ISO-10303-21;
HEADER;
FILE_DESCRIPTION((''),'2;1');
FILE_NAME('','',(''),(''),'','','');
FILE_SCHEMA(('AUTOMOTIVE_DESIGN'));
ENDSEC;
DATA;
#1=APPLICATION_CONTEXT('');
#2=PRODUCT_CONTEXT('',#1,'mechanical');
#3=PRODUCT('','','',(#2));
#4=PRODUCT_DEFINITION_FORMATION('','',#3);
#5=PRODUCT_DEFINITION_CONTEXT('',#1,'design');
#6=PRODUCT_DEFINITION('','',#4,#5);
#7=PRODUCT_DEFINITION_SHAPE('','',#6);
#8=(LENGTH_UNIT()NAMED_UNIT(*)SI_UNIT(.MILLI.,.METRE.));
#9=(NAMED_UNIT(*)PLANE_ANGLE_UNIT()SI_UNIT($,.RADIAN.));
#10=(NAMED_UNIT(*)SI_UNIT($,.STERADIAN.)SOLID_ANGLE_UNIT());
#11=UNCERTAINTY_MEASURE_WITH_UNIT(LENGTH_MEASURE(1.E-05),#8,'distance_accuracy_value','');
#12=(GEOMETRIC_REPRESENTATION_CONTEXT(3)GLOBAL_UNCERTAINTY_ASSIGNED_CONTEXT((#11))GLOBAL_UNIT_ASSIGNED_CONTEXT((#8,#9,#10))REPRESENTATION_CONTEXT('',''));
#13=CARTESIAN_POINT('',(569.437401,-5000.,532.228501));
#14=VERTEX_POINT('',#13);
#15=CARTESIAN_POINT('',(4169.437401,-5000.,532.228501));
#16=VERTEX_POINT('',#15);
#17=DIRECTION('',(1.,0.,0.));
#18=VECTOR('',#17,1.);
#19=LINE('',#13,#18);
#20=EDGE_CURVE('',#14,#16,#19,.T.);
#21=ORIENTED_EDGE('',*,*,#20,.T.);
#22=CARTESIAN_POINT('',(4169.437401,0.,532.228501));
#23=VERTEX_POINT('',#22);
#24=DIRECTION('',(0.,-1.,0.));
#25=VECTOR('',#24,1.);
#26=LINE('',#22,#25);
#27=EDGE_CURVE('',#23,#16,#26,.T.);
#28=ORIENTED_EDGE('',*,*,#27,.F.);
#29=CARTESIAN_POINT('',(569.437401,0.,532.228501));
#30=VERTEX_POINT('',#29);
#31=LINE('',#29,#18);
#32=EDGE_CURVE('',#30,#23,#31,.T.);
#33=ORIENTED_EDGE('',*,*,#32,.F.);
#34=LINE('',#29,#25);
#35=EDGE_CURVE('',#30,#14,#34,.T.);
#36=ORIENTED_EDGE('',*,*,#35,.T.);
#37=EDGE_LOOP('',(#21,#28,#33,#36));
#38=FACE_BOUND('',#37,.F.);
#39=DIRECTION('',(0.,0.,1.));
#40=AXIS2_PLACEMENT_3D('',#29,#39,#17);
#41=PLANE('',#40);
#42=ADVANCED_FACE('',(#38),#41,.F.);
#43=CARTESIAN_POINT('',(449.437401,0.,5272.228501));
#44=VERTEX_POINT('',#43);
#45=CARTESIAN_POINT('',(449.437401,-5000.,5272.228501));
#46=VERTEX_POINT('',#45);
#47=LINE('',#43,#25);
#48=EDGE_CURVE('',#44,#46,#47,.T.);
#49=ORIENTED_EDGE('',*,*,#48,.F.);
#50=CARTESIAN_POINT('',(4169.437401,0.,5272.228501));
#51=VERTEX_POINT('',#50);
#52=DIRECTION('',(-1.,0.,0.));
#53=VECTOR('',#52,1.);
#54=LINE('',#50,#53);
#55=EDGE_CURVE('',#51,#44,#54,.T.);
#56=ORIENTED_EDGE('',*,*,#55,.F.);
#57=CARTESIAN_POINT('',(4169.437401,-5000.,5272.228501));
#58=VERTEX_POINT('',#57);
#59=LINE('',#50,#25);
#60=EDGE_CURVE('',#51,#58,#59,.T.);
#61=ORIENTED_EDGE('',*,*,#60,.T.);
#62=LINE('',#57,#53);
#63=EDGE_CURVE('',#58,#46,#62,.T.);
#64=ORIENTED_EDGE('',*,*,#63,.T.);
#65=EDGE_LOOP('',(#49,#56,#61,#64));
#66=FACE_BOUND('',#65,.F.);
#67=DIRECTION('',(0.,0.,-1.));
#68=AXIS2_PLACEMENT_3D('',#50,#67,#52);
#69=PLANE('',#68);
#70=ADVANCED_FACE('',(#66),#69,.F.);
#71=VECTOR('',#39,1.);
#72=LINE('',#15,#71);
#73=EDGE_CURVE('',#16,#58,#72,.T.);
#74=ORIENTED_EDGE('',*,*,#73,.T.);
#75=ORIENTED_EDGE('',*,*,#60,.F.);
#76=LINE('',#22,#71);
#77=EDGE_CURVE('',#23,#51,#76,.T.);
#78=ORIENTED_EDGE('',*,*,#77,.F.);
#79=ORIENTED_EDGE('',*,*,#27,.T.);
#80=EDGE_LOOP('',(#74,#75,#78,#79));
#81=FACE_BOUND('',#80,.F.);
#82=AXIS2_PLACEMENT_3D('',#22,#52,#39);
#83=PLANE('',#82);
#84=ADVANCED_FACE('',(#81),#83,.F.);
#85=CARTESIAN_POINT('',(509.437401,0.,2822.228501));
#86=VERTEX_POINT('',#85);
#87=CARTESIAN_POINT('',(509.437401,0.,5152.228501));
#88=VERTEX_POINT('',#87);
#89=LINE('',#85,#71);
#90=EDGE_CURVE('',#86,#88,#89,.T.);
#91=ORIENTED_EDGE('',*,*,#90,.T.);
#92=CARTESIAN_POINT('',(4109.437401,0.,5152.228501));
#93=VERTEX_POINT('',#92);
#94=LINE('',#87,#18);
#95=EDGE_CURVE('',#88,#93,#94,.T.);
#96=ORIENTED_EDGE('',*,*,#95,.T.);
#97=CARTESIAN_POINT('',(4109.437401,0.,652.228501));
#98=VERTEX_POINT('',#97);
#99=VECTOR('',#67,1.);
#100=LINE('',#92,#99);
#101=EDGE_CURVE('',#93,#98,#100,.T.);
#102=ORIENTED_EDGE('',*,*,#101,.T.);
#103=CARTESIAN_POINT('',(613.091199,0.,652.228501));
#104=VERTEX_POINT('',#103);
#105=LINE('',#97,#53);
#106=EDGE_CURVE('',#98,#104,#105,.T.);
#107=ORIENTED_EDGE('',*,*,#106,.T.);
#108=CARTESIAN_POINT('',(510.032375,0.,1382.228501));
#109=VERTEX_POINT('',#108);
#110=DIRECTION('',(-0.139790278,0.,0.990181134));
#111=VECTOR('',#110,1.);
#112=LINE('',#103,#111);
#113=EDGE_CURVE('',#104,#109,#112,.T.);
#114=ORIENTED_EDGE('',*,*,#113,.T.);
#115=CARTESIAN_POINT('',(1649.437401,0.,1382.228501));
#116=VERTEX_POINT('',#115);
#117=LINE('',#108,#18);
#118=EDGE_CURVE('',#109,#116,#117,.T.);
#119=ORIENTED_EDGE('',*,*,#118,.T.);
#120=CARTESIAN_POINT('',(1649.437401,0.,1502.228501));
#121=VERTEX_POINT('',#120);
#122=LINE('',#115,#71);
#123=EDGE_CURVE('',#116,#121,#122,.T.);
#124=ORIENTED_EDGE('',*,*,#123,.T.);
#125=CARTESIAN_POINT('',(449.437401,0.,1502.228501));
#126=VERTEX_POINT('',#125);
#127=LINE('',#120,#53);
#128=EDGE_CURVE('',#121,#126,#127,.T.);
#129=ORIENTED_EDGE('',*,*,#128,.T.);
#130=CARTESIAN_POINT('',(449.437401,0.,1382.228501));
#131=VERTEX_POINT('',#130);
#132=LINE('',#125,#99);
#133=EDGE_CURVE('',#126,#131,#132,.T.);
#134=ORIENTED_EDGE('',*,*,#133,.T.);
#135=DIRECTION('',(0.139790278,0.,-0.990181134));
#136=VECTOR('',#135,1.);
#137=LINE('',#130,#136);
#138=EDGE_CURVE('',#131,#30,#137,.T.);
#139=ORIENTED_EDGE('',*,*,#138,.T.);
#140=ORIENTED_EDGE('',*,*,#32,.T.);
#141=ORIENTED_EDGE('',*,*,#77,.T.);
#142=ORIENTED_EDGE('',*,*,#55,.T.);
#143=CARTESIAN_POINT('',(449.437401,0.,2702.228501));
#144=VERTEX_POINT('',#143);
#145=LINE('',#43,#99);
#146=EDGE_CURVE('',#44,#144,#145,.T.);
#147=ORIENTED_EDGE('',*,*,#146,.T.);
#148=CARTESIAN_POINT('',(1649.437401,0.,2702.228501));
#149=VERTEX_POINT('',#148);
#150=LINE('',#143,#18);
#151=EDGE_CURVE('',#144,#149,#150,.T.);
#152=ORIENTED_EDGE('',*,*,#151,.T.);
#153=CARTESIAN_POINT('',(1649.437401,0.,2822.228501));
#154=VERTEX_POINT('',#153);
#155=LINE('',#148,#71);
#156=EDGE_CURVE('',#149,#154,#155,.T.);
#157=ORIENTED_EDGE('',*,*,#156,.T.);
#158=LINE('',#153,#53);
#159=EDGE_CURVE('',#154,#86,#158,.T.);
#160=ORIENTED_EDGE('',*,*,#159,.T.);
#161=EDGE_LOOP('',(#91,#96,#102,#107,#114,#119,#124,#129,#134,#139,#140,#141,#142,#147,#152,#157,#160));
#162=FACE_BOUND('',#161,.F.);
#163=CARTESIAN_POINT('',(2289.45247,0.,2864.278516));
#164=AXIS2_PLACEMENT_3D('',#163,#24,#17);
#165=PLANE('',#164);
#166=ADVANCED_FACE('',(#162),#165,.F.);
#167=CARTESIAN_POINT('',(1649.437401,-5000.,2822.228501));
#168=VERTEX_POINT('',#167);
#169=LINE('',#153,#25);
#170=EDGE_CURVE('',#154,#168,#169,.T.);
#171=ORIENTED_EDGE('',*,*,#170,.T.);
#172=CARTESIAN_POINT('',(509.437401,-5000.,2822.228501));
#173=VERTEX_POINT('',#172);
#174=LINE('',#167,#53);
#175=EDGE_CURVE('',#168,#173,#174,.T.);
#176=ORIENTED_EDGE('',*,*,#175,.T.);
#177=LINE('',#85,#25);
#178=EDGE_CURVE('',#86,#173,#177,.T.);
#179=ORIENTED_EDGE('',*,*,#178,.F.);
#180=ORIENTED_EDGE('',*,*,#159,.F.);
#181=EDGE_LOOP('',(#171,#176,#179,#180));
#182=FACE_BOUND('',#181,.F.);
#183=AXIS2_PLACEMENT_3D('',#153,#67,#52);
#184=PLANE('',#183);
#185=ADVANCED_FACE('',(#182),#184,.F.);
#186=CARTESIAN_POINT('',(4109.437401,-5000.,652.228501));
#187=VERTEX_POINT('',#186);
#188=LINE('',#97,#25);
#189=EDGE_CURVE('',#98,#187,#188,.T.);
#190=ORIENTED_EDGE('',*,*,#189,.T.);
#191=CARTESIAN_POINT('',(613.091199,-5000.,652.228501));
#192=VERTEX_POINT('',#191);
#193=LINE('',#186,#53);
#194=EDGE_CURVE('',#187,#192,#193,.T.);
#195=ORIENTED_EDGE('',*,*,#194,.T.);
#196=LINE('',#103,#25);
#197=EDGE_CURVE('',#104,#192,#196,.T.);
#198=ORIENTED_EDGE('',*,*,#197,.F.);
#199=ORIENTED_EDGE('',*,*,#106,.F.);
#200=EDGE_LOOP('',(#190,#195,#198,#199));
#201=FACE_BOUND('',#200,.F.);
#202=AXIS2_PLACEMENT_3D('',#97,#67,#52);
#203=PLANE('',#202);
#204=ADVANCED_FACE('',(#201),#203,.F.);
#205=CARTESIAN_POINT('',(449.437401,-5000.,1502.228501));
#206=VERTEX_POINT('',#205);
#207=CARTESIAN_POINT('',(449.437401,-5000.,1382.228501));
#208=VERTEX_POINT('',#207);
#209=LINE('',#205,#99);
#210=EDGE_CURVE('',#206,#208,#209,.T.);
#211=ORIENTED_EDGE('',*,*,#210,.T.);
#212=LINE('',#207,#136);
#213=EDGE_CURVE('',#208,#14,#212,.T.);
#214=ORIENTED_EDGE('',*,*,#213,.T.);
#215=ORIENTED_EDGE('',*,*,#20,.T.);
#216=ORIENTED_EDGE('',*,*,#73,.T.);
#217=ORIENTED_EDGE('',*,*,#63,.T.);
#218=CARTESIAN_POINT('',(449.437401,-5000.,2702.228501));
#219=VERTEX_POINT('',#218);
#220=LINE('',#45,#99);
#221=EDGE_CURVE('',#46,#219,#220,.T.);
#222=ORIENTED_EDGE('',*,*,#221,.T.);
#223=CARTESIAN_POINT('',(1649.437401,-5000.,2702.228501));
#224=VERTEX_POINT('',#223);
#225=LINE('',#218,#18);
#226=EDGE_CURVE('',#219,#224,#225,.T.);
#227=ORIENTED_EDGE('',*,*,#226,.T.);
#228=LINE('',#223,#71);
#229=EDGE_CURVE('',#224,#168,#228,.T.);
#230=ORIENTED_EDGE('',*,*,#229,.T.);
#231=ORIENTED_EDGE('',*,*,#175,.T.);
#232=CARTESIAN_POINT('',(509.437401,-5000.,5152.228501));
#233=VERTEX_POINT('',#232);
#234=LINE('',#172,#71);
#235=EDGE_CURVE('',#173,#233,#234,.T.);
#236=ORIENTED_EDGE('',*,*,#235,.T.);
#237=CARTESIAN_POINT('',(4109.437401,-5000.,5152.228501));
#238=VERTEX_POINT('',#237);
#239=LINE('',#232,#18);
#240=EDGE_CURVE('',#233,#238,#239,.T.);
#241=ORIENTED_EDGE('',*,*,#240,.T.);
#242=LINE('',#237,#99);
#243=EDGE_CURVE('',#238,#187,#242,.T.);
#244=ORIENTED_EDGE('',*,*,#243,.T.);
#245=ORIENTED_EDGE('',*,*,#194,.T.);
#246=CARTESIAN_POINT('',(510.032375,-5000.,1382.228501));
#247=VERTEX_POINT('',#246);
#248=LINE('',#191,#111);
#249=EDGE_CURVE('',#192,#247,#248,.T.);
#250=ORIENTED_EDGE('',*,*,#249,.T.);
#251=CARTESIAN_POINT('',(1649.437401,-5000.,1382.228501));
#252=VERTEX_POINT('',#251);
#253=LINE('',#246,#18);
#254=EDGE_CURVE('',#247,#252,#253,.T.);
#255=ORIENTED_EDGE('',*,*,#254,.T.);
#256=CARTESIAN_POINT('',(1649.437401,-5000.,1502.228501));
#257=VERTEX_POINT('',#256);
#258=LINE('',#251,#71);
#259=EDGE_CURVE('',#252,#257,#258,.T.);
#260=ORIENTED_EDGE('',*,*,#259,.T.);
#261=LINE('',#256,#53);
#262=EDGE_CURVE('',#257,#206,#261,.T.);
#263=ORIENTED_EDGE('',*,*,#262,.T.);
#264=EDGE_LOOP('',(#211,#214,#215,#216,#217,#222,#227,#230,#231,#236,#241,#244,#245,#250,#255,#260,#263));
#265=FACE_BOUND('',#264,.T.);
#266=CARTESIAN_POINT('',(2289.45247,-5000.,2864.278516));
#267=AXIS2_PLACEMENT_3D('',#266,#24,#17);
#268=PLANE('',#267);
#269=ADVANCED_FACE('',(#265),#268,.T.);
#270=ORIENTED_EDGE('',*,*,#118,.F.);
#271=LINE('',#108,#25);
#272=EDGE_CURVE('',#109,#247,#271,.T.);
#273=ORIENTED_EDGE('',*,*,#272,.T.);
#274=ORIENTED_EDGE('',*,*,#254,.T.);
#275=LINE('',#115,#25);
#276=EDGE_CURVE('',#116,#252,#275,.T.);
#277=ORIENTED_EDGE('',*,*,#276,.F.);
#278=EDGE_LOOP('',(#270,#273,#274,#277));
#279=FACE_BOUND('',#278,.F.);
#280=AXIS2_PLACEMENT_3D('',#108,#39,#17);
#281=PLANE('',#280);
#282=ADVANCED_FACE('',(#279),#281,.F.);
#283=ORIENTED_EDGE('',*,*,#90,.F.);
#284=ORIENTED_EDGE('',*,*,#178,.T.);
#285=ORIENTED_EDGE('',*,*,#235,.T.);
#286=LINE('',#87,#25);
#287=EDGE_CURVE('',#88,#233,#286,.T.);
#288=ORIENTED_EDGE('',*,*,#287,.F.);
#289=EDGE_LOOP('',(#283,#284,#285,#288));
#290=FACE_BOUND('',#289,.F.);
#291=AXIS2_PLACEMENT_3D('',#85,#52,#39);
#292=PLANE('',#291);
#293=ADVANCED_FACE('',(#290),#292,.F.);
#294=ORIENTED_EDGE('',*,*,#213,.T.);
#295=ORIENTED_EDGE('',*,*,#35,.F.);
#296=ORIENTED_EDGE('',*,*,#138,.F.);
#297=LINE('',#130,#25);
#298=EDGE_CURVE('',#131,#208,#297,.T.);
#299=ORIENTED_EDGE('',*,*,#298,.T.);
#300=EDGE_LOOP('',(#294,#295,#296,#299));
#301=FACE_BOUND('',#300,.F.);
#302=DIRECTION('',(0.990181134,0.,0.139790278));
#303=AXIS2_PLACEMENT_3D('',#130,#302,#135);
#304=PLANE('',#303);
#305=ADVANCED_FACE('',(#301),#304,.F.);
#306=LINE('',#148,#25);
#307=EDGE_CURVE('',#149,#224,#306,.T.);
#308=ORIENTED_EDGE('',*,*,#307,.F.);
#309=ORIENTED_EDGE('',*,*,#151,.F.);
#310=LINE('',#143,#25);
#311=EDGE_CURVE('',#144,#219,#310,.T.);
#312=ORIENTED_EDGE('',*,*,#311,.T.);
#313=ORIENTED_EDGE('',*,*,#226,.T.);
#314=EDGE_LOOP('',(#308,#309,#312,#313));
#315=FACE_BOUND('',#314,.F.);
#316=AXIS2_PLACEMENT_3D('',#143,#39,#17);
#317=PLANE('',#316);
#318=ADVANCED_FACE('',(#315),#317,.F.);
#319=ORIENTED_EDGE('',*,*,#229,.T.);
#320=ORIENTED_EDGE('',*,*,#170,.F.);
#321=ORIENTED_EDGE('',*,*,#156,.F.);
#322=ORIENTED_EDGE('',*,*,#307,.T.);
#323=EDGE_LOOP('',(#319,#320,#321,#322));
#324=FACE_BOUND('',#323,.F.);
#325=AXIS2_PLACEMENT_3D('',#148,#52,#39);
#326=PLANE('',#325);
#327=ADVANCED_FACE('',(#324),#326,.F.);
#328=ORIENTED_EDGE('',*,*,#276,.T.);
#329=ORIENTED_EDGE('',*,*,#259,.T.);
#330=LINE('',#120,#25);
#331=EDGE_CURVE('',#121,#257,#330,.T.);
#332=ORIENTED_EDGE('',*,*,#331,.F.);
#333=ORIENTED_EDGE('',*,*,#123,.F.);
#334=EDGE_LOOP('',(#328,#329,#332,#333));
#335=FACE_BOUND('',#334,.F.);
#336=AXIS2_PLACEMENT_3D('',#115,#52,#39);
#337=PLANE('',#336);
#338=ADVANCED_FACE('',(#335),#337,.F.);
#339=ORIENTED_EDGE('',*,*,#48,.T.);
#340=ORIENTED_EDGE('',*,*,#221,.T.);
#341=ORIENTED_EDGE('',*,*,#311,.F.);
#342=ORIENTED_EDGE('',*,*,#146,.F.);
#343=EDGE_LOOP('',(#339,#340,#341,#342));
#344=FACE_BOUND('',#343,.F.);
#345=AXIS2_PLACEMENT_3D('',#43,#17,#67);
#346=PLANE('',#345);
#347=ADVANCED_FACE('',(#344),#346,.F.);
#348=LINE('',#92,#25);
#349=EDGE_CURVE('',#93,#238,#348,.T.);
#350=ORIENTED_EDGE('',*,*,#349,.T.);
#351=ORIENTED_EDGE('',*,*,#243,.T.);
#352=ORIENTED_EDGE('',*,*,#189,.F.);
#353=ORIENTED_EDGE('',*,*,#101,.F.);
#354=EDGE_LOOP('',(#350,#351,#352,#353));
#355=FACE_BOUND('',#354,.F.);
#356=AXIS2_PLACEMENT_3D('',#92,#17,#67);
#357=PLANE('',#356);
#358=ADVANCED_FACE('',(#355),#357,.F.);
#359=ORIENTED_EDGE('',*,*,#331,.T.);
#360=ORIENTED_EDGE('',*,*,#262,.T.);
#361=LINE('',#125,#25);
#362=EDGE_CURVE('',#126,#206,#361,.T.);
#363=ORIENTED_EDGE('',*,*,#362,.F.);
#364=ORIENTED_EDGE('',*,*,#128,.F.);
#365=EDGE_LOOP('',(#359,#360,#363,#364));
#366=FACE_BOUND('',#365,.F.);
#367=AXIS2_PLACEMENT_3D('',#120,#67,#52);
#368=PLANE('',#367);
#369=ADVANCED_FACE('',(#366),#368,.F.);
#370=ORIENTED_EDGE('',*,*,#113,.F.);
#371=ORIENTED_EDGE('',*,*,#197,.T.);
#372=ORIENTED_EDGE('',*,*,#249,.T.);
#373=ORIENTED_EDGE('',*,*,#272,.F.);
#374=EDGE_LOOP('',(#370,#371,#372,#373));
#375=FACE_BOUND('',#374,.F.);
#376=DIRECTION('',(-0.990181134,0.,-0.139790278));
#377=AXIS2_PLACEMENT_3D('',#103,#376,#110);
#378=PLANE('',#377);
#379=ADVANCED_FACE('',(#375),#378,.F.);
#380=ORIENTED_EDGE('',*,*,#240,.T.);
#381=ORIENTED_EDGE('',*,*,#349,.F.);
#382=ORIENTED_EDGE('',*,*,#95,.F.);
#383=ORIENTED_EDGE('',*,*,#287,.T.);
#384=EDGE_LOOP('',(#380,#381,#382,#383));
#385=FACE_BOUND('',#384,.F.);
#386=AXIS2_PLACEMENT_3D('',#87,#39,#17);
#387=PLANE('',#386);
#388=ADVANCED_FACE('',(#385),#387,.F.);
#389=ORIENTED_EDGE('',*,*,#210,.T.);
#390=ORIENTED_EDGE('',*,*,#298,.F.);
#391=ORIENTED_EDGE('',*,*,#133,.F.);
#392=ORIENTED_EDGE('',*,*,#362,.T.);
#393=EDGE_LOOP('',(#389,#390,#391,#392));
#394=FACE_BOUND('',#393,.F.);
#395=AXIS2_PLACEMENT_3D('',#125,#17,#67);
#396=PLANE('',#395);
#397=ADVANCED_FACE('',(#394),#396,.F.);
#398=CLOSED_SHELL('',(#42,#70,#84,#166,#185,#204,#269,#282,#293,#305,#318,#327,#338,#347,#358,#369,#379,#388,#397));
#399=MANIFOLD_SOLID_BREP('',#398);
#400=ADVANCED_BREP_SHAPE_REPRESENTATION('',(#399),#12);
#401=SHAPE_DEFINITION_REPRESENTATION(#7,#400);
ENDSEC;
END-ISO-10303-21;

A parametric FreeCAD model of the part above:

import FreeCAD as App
import Part
import Sketcher
from FreeCAD import Vector
Q = App.Units.Quantity

doc = App.newDocument("Part")
body = doc.addObject("PartDesign::Body", "Body")

sketch1 = body.newObject("Sketcher::SketchObject", "Sketch")
sketch1.AttachmentSupport = (doc.getObject("XZ_Plane"), [""])
sketch1.MapMode = "FlatFace"
sketch1.addGeometry([
    Part.LineSegment(Vector(449, 1382, 0), Vector(569, 532, 0)),
    Part.LineSegment(Vector(569, 532, 0), Vector(4169, 532, 0)),
    Part.LineSegment(Vector(4169, 532, 0), Vector(4169, 5272, 0)),
    Part.LineSegment(Vector(4169, 5272, 0), Vector(449, 5272, 0)),
    Part.LineSegment(Vector(449, 5272, 0), Vector(449, 2702, 0)),
    Part.LineSegment(Vector(449, 2702, 0), Vector(1649, 2702, 0)),
    Part.LineSegment(Vector(1649, 2702, 0), Vector(1649, 2822, 0)),
    Part.LineSegment(Vector(1649, 2822, 0), Vector(509, 2822, 0)),
    Part.LineSegment(Vector(509, 2822, 0), Vector(509, 5152, 0)),
    Part.LineSegment(Vector(509, 5152, 0), Vector(4109, 5152, 0)),
    Part.LineSegment(Vector(4109, 5152, 0), Vector(4109, 652, 0)),
    Part.LineSegment(Vector(4109, 652, 0), Vector(613, 652, 0)),
    Part.LineSegment(Vector(613, 652, 0), Vector(510, 1382, 0)),
    Part.LineSegment(Vector(510, 1382, 0), Vector(1649, 1382, 0)),
    Part.LineSegment(Vector(1649, 1382, 0), Vector(1649, 1502, 0)),
    Part.LineSegment(Vector(1649, 1502, 0), Vector(449, 1502, 0)),
    Part.LineSegment(Vector(449, 1502, 0), Vector(449, 1382, 0)),
], False)
sketch1.addConstraint([
    Sketcher.Constraint("Coincident", 0, 2, 1, 1),
    Sketcher.Constraint("Coincident", 1, 2, 2, 1),
    Sketcher.Constraint("Coincident", 2, 2, 3, 1),
    Sketcher.Constraint("Coincident", 3, 2, 4, 1),
    Sketcher.Constraint("Coincident", 4, 2, 5, 1),
    Sketcher.Constraint("Coincident", 5, 2, 6, 1),
    Sketcher.Constraint("Coincident", 6, 2, 7, 1),
    Sketcher.Constraint("Coincident", 7, 2, 8, 1),
    Sketcher.Constraint("Coincident", 8, 2, 9, 1),
    Sketcher.Constraint("Coincident", 9, 2, 10, 1),
    Sketcher.Constraint("Coincident", 10, 2, 11, 1),
    Sketcher.Constraint("Coincident", 11, 2, 12, 1),
    Sketcher.Constraint("Coincident", 12, 2, 13, 1),
    Sketcher.Constraint("Coincident", 13, 2, 14, 1),
    Sketcher.Constraint("Coincident", 14, 2, 15, 1),
    Sketcher.Constraint("Coincident", 15, 2, 16, 1),
    Sketcher.Constraint("Coincident", 16, 2, 0, 1),
    Sketcher.Constraint("Horizontal", 1),
    Sketcher.Constraint("Vertical", 2),
    Sketcher.Constraint("Horizontal", 3),
    Sketcher.Constraint("Vertical", 4),
    Sketcher.Constraint("Horizontal", 5),
    Sketcher.Constraint("Vertical", 6),
    Sketcher.Constraint("Horizontal", 7),
    Sketcher.Constraint("Vertical", 8),
    Sketcher.Constraint("Horizontal", 9),
    Sketcher.Constraint("Vertical", 10),
    Sketcher.Constraint("Horizontal", 11),
    Sketcher.Constraint("Horizontal", 13),
    Sketcher.Constraint("Vertical", 14),
    Sketcher.Constraint("Horizontal", 15),
    Sketcher.Constraint("Vertical", 16),
    Sketcher.Constraint("Parallel", 0, 12),
    Sketcher.Constraint("Horizontal", 13, 2, 16, 2),
    Sketcher.Constraint("Vertical", 6, 2, 13, 2),
    Sketcher.Constraint("Vertical", 4, 2, 15, 2),
    Sketcher.Constraint("Equal", 1, 9),
    Sketcher.Constraint("Equal", 6, 14),
    Sketcher.Constraint("DistanceX", 1, 1, 1, 2, Q("3600 mm")),
    Sketcher.Constraint("DistanceX", 3, 2, 3, 1, Q("3720 mm")),
    Sketcher.Constraint("DistanceX", 5, 1, 5, 2, Q("1200 mm")),
    Sketcher.Constraint("DistanceX", 7, 2, 7, 1, Q("1140 mm")),
    Sketcher.Constraint("DistanceY", 2, 1, 2, 2, Q("4740 mm")),
    Sketcher.Constraint("DistanceY", 4, 2, 4, 1, Q("2570 mm")),
    Sketcher.Constraint("DistanceY", 6, 1, 6, 2, Q("120 mm")),
    Sketcher.Constraint("DistanceY", 8, 1, 8, 2, Q("2330 mm")),
    Sketcher.Constraint("DistanceY", 10, 2, 10, 1, Q("4500 mm")),
    Sketcher.Constraint("DistanceY", 11, 2, 12, 2, Q("730 mm")),
    Sketcher.Constraint("DistanceX", -1, 1, 0, 2, Q("569.437401 mm")),
    Sketcher.Constraint("DistanceY", -1, 1, 0, 2, Q("532.228501 mm")),
    Sketcher.Constraint("DistanceX", -1, 1, 11, 2, Q("613.091199 mm")),
])
pad1 = body.newObject("PartDesign::Pad", "Pad")
pad1.Profile = sketch1
pad1.Length = 5000

doc.recompute()
